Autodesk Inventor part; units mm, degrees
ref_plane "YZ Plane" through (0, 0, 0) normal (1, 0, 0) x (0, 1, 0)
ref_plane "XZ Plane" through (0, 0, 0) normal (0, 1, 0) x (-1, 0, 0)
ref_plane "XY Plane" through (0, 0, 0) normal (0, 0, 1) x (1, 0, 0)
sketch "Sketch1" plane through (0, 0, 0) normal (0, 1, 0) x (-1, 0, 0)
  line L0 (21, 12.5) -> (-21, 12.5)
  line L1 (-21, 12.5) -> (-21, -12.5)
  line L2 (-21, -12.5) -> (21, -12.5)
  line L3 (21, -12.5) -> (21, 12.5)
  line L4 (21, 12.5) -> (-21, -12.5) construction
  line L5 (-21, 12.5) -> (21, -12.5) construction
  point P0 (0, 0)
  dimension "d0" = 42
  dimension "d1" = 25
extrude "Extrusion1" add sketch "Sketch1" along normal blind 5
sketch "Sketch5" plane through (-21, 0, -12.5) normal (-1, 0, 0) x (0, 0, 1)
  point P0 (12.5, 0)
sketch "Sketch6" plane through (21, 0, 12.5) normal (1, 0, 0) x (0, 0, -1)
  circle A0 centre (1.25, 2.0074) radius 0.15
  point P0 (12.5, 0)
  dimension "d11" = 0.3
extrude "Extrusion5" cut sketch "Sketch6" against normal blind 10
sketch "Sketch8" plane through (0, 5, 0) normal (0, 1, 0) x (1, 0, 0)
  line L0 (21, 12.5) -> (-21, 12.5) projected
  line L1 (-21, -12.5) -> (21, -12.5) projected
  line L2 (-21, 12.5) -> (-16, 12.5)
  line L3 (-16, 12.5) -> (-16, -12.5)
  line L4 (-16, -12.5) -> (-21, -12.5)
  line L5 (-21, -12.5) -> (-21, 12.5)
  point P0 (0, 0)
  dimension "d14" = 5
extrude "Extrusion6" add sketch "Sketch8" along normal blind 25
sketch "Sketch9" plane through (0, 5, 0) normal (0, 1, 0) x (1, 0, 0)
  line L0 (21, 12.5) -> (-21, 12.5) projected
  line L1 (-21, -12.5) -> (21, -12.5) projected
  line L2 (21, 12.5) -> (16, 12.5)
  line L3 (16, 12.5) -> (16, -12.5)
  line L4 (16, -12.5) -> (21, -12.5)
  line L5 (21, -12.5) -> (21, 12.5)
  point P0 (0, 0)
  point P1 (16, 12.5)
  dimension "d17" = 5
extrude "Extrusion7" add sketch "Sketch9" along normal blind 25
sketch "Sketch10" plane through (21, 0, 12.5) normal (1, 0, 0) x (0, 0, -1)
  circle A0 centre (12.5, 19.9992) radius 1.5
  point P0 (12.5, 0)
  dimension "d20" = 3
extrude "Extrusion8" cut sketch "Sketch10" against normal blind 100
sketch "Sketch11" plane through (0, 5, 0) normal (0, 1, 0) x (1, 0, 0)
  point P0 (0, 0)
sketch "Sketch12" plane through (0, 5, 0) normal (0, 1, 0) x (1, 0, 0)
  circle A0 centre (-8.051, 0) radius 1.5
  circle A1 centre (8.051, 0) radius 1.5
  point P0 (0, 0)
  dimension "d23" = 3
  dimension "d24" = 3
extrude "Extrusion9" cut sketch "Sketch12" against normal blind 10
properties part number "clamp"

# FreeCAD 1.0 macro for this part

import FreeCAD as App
import Part
import Sketcher

V = App.Vector
Q = App.Units.Quantity

doc = App.newDocument("Part")
body = doc.addObject("PartDesign::Body", "Body")

sketch1 = body.newObject("Sketcher::SketchObject", "Sketch")
sketch1.AttachmentSupport = (doc.getObject("XZ_Plane"), [""])
sketch1.MapMode = "FlatFace"
sketch1.addGeometry(Part.LineSegment(V(-21, -12, 0), V(-21, 12, 0)), False)
sketch1.addGeometry(Part.LineSegment(V(-21, 12, 0), V(21, 12, 0)), False)
sketch1.addGeometry(Part.LineSegment(V(21, 12, 0), V(21, -12, 0)), False)
sketch1.addGeometry(Part.LineSegment(V(21, -12, 0), V(-21, -12, 0)), False)
sketch1.addConstraint(Sketcher.Constraint("Coincident", 0, 2, 1, 1))
sketch1.addConstraint(Sketcher.Constraint("Coincident", 1, 2, 2, 1))
sketch1.addConstraint(Sketcher.Constraint("Coincident", 2, 2, 3, 1))
sketch1.addConstraint(Sketcher.Constraint("Coincident", 3, 2, 0, 1))
sketch1.addConstraint(Sketcher.Constraint("Vertical", 0))
sketch1.addConstraint(Sketcher.Constraint("Horizontal", 1))
sketch1.addConstraint(Sketcher.Constraint("Vertical", 2))
sketch1.addConstraint(Sketcher.Constraint("Horizontal", 3))
sketch1.addConstraint(Sketcher.Constraint("Symmetric", 0, 2, 2, 2, -1, 1))
sketch1.addConstraint(Sketcher.Constraint("DistanceX", 1, 1, 1, 2, Q("42 mm")))
sketch1.addConstraint(Sketcher.Constraint("DistanceY", 0, 1, 0, 2, Q("25 mm")))
pad1 = body.newObject("PartDesign::Pad", "Pad")
pad1.Profile = sketch1
pad1.Length = 5
pad1.Reversed = True

sketch2 = body.newObject("Sketcher::SketchObject", "Sketch001")
sketch2.AttachmentSupport = (doc.getObject("YZ_Plane"), [""])
sketch2.MapMode = "FlatFace"
sketch2.AttachmentOffset = App.Placement(V(0, 0, 21), App.Rotation())
sketch2.addGeometry(Part.Circle(V(2.01, 11.25, 0), V(0, 0, 1), 0.15), False)
sketch2.addConstraint(Sketcher.Constraint("Diameter", 0, Q("0.3 mm")))
sketch2.addConstraint(Sketcher.Constraint("DistanceY", -1, 1, 0, 3, Q("11.25 mm")))
sketch2.addConstraint(Sketcher.Constraint("DistanceX", -1, 1, 0, 3, Q("2.0074 mm")))
pocket1 = body.newObject("PartDesign::Pocket", "Pocket")
pocket1.Profile = sketch2
pocket1.Length = 10

sketch3 = body.newObject("Sketcher::SketchObject", "Sketch002")
sketch3.AttachmentSupport = (doc.getObject("XZ_Plane"), [""])
sketch3.MapMode = "FlatFace"
sketch3.AttachmentOffset = App.Placement(V(0, 0, -5), App.Rotation())
sketch3.addGeometry(Part.LineSegment(V(-16, 12, 0), V(-16, -12, 0)), False)
sketch3.addGeometry(Part.LineSegment(V(-16, -12, 0), V(-21, -12, 0)), False)
sketch3.addGeometry(Part.LineSegment(V(-21, -12, 0), V(-21, 12, 0)), False)
sketch3.addGeometry(Part.LineSegment(V(-21, 12, 0), V(-16, 12, 0)), False)
sketch3.addConstraint(Sketcher.Constraint("Coincident", 0, 2, 1, 1))
sketch3.addConstraint(Sketcher.Constraint("Coincident", 1, 2, 2, 1))
sketch3.addConstraint(Sketcher.Constraint("Coincident", 2, 2, 3, 1))
sketch3.addConstraint(Sketcher.Constraint("Coincident", 3, 2, 0, 1))
sketch3.addConstraint(Sketcher.Constraint("Vertical", 0))
sketch3.addConstraint(Sketcher.Constraint("Horizontal", 1))
sketch3.addConstraint(Sketcher.Constraint("Vertical", 2))
sketch3.addConstraint(Sketcher.Constraint("Horizontal", 3))
sketch3.addConstraint(Sketcher.Constraint("DistanceX", 1, 2, 1, 1, Q("5 mm")))
sketch3.addConstraint(Sketcher.Constraint("DistanceY", 0, 2, 0, 1, Q("25 mm")))
sketch3.addConstraint(Sketcher.Constraint("DistanceX", 0, 2, -1, 1, Q("16 mm")))
sketch3.addConstraint(Sketcher.Constraint("DistanceY", 0, 2, -1, 1, Q("12.5 mm")))
pad2 = body.newObject("PartDesign::Pad", "Pad001")
pad2.Profile = sketch3
pad2.Length = 25
pad2.Reversed = True

sketch4 = body.newObject("Sketcher::SketchObject", "Sketch003")
sketch4.AttachmentSupport = (doc.getObject("XZ_Plane"), [""])
sketch4.MapMode = "FlatFace"
sketch4.AttachmentOffset = App.Placement(V(0, 0, -5), App.Rotation())
sketch4.addGeometry(Part.LineSegment(V(21, 12, 0), V(21, -12, 0)), False)
sketch4.addGeometry(Part.LineSegment(V(21, -12, 0), V(16, -12, 0)), False)
sketch4.addGeometry(Part.LineSegment(V(16, -12, 0), V(16, 12, 0)), False)
sketch4.addGeometry(Part.LineSegment(V(16, 12, 0), V(21, 12, 0)), False)
sketch4.addConstraint(Sketcher.Constraint("Coincident", 0, 2, 1, 1))
sketch4.addConstraint(Sketcher.Constraint("Coincident", 1, 2, 2, 1))
sketch4.addConstraint(Sketcher.Constraint("Coincident", 2, 2, 3, 1))
sketch4.addConstraint(Sketcher.Constraint("Coincident", 3, 2, 0, 1))
sketch4.addConstraint(Sketcher.Constraint("Vertical", 0))
sketch4.addConstraint(Sketcher.Constraint("Horizontal", 1))
sketch4.addConstraint(Sketcher.Constraint("Vertical", 2))
sketch4.addConstraint(Sketcher.Constraint("Horizontal", 3))
sketch4.addConstraint(Sketcher.Constraint("DistanceX", 1, 2, 1, 1, Q("5 mm")))
sketch4.addConstraint(Sketcher.Constraint("DistanceY", 0, 2, 0, 1, Q("25 mm")))
sketch4.addConstraint(Sketcher.Constraint("DistanceX", -1, 1, 0, 2, Q("21 mm")))
sketch4.addConstraint(Sketcher.Constraint("DistanceY", 0, 2, -1, 1, Q("12.5 mm")))
pad3 = body.newObject("PartDesign::Pad", "Pad002")
pad3.Profile = sketch4
pad3.Length = 25
pad3.Reversed = True

sketch5 = body.newObject("Sketcher::SketchObject", "Sketch004")
sketch5.AttachmentSupport = (doc.getObject("YZ_Plane"), [""])
sketch5.MapMode = "FlatFace"
sketch5.AttachmentOffset = App.Placement(V(0, 0, 21), App.Rotation())
sketch5.addGeometry(Part.Circle(V(20, 0, 0), V(0, 0, 1), 1.5), False)
sketch5.addConstraint(Sketcher.Constraint("PointOnObject", 0, 3, -1))
sketch5.addConstraint(Sketcher.Constraint("Diameter", 0, Q("3 mm")))
sketch5.addConstraint(Sketcher.Constraint("DistanceX", -1, 1, 0, 3, Q("19.9992 mm")))
pocket2 = body.newObject("PartDesign::Pocket", "Pocket001")
pocket2.Profile = sketch5
pocket2.Length = 100

sketch6 = body.newObject("Sketcher::SketchObject", "Sketch005")
sketch6.AttachmentSupport = (doc.getObject("XZ_Plane"), [""])
sketch6.MapMode = "FlatFace"
sketch6.AttachmentOffset = App.Placement(V(0, 0, -5), App.Rotation())
sketch6.addGeometry(Part.Circle(V(-8.1, 0, 0), V(0, 0, 1), 1.5), False)
sketch6.addGeometry(Part.Circle(V(8.1, 0, 0), V(0, 0, 1), 1.5), False)
sketch6.addConstraint(Sketcher.Constraint("Equal", 0, 1))
sketch6.addConstraint(Sketcher.Constraint("Symmetric", 0, 3, 1, 3, -1, 1))
sketch6.addConstraint(Sketcher.Constraint("PointOnObject", 0, 3, -1))
sketch6.addConstraint(Sketcher.Constraint("Diameter", 0, Q("3 mm")))
sketch6.addConstraint(Sketcher.Constraint("DistanceX", 0, 3, -1, 1, Q("8.051 mm")))
pocket3 = body.newObject("PartDesign::Pocket", "Pocket002")
pocket3.Profile = sketch6
pocket3.Length = 10
pocket3.Reversed = True

doc.recompute()
